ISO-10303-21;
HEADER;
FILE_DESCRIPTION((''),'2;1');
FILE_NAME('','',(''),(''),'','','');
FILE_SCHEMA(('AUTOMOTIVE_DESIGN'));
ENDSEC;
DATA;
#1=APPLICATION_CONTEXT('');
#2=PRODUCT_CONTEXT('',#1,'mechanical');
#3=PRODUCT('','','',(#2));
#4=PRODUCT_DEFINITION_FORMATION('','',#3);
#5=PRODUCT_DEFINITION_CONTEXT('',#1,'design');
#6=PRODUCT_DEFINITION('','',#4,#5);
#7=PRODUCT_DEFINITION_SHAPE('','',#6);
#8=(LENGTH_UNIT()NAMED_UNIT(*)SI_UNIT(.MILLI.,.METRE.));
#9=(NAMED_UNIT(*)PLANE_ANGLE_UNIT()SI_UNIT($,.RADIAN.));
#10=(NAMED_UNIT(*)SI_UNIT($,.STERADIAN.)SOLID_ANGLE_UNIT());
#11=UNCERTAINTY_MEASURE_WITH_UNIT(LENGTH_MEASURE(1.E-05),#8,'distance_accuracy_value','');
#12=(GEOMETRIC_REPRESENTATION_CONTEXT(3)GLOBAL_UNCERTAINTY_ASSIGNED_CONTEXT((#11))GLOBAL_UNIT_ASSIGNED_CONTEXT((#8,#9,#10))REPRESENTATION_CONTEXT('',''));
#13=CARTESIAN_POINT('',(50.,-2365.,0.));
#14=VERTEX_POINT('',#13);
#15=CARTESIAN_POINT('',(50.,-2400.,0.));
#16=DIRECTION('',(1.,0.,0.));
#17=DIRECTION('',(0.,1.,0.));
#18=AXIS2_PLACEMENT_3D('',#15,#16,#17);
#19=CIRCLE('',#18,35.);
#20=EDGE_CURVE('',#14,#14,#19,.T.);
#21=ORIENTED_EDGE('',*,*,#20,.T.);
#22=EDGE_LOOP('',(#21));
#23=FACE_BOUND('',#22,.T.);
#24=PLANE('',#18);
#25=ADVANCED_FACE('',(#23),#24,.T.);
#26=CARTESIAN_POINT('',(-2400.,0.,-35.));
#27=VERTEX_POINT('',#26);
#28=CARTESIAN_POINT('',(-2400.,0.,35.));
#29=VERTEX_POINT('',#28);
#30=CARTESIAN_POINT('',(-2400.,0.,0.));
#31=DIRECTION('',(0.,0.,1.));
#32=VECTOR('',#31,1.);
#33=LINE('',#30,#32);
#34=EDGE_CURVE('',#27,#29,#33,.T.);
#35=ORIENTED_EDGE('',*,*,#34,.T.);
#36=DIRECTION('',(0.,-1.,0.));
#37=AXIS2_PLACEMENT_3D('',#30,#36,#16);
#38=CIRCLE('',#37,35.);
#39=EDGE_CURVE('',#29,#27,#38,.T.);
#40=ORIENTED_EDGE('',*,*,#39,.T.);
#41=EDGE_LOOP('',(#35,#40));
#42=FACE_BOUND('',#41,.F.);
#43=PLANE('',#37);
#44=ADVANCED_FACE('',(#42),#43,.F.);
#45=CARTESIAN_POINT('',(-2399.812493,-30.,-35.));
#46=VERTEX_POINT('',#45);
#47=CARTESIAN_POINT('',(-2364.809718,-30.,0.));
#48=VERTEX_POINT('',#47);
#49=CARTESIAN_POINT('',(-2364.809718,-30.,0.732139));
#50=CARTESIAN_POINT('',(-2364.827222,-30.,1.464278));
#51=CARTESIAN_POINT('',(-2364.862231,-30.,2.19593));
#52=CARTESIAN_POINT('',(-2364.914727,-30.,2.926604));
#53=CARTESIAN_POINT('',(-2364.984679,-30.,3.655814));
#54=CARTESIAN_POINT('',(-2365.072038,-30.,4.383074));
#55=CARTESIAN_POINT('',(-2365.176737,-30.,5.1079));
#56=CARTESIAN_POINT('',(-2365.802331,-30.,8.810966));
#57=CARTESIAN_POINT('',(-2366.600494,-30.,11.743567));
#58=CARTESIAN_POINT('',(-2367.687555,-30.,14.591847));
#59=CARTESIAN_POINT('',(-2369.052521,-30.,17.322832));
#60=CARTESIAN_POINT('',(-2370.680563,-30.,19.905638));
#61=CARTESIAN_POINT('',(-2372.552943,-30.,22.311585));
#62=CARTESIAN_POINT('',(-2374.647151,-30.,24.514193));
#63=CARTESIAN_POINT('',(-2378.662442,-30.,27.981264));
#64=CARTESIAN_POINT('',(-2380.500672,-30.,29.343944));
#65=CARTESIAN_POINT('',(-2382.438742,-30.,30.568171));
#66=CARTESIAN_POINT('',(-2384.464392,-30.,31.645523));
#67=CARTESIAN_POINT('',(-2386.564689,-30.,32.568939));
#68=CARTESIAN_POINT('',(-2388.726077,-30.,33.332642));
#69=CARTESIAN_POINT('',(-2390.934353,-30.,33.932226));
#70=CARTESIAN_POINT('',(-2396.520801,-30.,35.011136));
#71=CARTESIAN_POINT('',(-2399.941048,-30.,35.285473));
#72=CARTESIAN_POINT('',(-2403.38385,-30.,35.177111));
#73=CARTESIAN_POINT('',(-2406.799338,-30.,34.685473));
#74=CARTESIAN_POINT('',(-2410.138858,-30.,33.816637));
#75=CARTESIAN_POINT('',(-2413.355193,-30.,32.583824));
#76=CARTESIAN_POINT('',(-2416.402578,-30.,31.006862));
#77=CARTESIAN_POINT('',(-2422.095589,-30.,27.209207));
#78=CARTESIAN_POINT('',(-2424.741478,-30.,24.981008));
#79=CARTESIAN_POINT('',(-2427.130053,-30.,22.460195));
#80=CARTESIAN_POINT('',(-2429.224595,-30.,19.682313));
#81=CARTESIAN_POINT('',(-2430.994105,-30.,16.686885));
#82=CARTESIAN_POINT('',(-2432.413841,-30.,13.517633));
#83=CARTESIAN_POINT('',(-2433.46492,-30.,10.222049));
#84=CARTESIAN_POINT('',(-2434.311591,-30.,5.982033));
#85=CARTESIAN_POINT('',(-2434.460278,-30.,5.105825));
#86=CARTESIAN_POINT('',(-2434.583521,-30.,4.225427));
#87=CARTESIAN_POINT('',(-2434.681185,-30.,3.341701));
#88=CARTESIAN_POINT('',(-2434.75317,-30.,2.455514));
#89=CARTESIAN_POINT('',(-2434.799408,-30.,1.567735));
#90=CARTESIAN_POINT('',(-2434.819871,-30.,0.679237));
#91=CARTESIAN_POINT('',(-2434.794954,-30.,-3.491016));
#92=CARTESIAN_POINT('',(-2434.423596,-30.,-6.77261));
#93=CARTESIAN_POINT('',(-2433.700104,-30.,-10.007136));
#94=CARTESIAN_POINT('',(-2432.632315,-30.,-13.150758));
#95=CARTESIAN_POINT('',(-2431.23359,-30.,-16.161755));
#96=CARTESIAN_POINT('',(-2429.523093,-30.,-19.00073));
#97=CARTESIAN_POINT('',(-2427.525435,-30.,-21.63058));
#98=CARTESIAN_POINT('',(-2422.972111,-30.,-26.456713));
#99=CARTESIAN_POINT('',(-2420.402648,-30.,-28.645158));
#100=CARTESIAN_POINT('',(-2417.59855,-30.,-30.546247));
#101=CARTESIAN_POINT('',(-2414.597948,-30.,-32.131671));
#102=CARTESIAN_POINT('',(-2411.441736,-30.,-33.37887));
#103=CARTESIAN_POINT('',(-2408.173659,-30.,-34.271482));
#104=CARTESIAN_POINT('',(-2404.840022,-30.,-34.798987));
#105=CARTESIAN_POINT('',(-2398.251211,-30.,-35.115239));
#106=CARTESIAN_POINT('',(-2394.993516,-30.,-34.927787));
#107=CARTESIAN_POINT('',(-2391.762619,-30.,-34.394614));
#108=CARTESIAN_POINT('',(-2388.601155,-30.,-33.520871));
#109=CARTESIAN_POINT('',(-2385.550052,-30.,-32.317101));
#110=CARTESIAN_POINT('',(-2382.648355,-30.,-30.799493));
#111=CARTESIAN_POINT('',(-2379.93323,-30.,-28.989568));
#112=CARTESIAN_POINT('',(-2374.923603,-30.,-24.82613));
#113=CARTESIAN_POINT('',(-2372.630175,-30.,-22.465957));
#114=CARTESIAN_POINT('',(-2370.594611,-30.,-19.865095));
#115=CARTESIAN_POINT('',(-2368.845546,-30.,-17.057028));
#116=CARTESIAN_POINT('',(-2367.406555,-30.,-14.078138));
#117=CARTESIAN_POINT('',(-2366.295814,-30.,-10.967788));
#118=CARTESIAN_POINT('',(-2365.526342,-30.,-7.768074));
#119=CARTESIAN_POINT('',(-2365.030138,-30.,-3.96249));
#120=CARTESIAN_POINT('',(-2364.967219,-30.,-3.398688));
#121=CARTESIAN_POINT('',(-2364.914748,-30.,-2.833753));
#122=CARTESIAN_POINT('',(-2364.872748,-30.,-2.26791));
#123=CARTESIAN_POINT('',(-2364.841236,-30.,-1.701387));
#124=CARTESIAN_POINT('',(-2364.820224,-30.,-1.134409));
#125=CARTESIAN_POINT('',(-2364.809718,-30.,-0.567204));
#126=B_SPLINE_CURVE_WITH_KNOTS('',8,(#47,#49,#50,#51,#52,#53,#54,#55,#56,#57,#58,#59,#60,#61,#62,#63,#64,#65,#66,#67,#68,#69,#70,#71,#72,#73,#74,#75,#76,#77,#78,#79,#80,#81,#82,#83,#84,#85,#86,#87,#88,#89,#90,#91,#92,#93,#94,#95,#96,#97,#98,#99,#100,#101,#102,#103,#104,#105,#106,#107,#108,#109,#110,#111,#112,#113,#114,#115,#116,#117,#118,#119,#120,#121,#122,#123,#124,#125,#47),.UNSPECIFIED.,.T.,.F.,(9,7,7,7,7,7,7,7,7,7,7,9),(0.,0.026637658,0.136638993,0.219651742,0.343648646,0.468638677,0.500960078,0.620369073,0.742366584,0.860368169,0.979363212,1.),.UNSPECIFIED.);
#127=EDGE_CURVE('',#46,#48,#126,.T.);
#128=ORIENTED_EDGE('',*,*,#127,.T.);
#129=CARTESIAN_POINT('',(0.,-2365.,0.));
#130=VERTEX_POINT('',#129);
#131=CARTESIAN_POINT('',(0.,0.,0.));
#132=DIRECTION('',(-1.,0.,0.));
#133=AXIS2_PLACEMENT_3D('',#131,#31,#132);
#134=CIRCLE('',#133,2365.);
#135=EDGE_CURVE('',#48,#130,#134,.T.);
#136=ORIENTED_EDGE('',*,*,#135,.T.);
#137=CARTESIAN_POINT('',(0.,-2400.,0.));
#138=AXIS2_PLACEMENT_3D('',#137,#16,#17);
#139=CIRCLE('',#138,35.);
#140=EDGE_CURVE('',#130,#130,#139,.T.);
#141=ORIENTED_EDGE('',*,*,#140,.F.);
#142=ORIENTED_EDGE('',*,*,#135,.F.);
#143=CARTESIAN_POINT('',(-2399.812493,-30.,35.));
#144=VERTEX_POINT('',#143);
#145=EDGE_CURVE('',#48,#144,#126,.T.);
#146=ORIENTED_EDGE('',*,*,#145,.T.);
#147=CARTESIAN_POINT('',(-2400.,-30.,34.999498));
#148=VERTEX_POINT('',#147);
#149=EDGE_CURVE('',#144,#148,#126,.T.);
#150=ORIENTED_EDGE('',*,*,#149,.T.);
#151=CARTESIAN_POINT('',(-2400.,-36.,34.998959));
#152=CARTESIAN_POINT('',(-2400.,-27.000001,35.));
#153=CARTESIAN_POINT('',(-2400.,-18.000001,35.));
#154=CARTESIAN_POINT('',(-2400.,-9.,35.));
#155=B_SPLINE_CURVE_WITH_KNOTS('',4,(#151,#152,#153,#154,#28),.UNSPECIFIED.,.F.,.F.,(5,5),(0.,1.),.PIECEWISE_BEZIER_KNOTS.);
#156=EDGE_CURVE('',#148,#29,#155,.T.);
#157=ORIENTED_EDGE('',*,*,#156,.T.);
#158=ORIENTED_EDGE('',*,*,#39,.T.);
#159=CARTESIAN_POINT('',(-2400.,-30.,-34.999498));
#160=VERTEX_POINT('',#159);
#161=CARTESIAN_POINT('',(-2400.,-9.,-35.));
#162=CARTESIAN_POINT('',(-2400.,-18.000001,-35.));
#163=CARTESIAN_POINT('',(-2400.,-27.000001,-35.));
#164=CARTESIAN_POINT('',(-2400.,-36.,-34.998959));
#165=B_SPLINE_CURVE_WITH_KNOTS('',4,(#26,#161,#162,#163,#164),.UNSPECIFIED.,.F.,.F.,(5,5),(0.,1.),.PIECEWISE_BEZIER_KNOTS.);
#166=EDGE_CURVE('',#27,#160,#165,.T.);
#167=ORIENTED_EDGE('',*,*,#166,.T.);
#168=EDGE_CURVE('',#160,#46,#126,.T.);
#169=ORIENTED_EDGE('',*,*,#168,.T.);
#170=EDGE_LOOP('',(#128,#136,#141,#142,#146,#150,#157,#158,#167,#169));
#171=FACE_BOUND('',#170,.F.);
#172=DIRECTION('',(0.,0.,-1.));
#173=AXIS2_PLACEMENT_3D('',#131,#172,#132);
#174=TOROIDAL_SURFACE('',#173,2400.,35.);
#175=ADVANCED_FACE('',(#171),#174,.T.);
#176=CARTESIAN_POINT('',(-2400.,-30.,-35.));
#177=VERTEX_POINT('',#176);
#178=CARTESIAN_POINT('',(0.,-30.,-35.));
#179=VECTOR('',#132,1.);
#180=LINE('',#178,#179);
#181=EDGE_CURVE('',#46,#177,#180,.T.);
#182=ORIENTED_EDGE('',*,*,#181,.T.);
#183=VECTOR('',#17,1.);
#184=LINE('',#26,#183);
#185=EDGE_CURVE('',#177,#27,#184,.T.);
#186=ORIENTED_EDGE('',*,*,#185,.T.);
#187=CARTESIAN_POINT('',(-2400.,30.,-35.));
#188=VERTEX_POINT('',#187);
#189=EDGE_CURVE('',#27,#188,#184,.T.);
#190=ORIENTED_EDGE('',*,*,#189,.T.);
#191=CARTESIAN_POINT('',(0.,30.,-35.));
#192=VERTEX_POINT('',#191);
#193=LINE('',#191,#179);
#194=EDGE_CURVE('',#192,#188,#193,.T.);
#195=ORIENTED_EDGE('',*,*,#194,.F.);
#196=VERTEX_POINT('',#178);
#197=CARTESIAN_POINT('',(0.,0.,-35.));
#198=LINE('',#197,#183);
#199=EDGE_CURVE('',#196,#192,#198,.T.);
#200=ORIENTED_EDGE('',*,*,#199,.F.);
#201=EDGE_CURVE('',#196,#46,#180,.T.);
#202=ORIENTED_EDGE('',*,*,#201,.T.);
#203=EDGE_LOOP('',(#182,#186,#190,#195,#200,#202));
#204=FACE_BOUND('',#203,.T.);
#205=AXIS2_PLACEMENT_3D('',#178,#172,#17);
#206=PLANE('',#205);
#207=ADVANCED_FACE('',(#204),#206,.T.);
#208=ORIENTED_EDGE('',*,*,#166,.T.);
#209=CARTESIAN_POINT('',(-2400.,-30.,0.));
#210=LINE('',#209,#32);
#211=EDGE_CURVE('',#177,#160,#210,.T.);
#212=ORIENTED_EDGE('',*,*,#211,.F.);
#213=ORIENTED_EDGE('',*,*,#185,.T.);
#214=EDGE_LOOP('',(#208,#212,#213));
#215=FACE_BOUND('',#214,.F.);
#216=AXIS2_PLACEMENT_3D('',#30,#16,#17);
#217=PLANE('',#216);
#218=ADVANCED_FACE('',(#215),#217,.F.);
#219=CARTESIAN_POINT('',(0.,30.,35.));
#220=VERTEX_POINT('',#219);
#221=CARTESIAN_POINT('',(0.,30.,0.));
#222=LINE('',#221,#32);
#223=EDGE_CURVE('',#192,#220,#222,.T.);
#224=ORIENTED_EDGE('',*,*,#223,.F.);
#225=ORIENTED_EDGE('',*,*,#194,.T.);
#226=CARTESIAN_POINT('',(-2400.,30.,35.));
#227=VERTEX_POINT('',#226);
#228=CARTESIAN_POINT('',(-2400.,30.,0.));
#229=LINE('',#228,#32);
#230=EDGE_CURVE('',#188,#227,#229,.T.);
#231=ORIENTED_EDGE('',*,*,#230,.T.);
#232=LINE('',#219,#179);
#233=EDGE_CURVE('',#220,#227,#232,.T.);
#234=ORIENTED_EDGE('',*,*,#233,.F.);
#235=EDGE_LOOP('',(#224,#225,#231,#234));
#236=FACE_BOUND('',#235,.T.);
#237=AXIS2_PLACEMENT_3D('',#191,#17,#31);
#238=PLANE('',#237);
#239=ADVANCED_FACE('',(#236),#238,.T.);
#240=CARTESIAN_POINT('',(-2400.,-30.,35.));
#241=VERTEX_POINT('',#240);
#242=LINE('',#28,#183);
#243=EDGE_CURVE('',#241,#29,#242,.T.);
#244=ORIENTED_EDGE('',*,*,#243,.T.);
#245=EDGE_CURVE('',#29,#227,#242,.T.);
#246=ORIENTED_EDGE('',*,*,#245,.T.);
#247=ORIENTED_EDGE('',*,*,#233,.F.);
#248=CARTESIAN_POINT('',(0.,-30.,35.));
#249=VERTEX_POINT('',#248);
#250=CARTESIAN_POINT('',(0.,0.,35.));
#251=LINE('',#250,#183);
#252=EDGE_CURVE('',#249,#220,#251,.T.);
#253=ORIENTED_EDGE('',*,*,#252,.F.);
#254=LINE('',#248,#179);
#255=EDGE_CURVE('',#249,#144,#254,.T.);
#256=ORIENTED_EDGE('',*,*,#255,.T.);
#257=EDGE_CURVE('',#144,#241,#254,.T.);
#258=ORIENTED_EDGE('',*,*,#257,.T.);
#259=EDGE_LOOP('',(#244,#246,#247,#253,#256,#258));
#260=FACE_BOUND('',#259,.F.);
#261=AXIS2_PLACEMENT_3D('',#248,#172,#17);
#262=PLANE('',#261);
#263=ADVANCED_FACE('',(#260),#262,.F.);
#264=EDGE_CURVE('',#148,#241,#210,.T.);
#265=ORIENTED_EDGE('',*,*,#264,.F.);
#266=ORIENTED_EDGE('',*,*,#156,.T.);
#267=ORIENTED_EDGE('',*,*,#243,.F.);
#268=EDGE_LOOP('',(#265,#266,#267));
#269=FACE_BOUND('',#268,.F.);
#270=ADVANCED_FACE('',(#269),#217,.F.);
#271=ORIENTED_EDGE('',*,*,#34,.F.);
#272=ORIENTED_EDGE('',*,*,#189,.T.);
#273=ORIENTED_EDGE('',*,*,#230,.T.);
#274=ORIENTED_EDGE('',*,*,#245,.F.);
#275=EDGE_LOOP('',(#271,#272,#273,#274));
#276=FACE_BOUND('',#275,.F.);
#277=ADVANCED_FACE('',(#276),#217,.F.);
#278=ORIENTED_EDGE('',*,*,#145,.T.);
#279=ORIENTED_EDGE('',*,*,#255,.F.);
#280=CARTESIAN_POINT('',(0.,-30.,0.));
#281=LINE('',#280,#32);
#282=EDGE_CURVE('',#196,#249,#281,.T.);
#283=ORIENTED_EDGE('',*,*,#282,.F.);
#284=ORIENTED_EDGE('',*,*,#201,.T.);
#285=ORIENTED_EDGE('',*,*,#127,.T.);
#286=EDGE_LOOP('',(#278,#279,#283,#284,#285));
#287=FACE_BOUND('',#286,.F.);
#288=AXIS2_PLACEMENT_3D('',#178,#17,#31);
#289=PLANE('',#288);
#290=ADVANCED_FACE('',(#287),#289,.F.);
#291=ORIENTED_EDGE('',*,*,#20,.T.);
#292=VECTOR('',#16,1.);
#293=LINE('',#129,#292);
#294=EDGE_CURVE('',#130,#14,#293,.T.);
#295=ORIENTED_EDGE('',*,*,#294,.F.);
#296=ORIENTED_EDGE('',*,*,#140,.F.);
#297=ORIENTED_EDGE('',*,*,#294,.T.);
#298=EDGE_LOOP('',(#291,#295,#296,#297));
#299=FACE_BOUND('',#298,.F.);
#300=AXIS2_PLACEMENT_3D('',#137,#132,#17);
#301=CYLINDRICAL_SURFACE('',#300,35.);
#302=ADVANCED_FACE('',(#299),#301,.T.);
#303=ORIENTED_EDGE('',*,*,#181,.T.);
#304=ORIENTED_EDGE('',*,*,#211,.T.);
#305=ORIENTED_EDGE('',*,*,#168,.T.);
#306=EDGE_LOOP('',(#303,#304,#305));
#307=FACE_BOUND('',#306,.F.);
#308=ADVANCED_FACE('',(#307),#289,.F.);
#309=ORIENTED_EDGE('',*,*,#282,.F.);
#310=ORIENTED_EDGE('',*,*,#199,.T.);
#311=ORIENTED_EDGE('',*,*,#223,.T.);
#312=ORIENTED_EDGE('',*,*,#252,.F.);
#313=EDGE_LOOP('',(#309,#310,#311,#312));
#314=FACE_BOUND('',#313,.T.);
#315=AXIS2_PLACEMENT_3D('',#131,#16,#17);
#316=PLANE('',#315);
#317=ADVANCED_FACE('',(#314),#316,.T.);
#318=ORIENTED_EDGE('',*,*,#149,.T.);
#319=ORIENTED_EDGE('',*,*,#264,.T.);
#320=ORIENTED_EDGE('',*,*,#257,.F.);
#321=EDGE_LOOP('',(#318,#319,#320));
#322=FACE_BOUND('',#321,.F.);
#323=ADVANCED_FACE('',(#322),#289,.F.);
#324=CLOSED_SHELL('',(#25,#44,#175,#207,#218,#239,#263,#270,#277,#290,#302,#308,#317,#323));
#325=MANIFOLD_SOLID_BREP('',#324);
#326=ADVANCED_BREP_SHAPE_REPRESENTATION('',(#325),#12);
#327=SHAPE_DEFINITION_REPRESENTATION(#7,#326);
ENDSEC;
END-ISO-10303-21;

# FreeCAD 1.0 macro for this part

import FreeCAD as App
import Part
import Sketcher
from FreeCAD import Vector
Q = App.Units.Quantity

doc = App.newDocument("Part")
body = doc.addObject("PartDesign::Body", "Body")

sketch1 = doc.addObject("Sketcher::SketchObject", "Sketch")
body.addObject(sketch1)
sketch1.AttachmentSupport = (doc.XZ_Plane, [""])
sketch1.MapMode = "FlatFace"
sketch1.addGeometry(Part.Circle(Vector(-2400, 0, 0), Vector(0, 0, 1), 35), False)
sketch1.addConstraint(Sketcher.Constraint("PointOnObject", 0, 3, -1))
sketch1.addConstraint(Sketcher.Constraint("Diameter", 0, Q("70 mm")))
sketch1.addConstraint(Sketcher.Constraint("DistanceX", 0, 3, -1, 1, Q("2400 mm")))
revolution = doc.addObject("PartDesign::Revolution", "Revolution")
body.addObject(revolution)
revolution.Profile = sketch1
revolution.ReferenceAxis = (sketch1, ["V_Axis"])
revolution.Angle = 90

sketch2 = doc.addObject("Sketcher::SketchObject", "Sketch001")
body.addObject(sketch2)
sketch2.AttachmentSupport = (doc.YZ_Plane, [""])
sketch2.MapMode = "FlatFace"
sketch2.addGeometry(Part.LineSegment(Vector(-30, 35, 0), Vector(-30, -35, 0)), False)
sketch2.addGeometry(Part.LineSegment(Vector(-30, -35, 0), Vector(30, -35, 0)), False)
sketch2.addGeometry(Part.LineSegment(Vector(30, -35, 0), Vector(30, 35, 0)), False)
sketch2.addGeometry(Part.LineSegment(Vector(30, 35, 0), Vector(-30, 35, 0)), False)
sketch2.addConstraint(Sketcher.Constraint("Coincident", 0, 2, 1, 1))
sketch2.addConstraint(Sketcher.Constraint("Coincident", 1, 2, 2, 1))
sketch2.addConstraint(Sketcher.Constraint("Coincident", 2, 2, 3, 1))
sketch2.addConstraint(Sketcher.Constraint("Coincident", 3, 2, 0, 1))
sketch2.addConstraint(Sketcher.Constraint("Vertical", 0))
sketch2.addConstraint(Sketcher.Constraint("Horizontal", 1))
sketch2.addConstraint(Sketcher.Constraint("Vertical", 2))
sketch2.addConstraint(Sketcher.Constraint("Horizontal", 3))
sketch2.addConstraint(Sketcher.Constraint("Symmetric", 0, 2, 2, 2, -1, 1))
sketch2.addConstraint(Sketcher.Constraint("DistanceX", 1, 1, 1, 2, Q("60 mm")))
sketch2.addConstraint(Sketcher.Constraint("DistanceY", 0, 2, 0, 1, Q("70 mm")))
pad1 = doc.addObject("PartDesign::Pad", "Pad")
body.addObject(pad1)
pad1.Profile = sketch2
pad1.Length = 2400
pad1.Reversed = True

sketch3 = doc.addObject("Sketcher::SketchObject", "Sketch002")
body.addObject(sketch3)
sketch3.AttachmentSupport = (doc.YZ_Plane, [""])
sketch3.MapMode = "FlatFace"
sketch3.addGeometry(Part.Circle(Vector(-2400, 0, 0), Vector(0, 0, 1), 35), False)
sketch3.addConstraint(Sketcher.Constraint("PointOnObject", 0, 3, -1))
sketch3.addConstraint(Sketcher.Constraint("Diameter", 0, Q("70 mm")))
sketch3.addConstraint(Sketcher.Constraint("DistanceX", 0, 3, -1, 1, Q("2400 mm")))
pad2 = doc.addObject("PartDesign::Pad", "Pad001")
body.addObject(pad2)
pad2.Profile = sketch3
pad2.Length = 50

doc.recompute()
